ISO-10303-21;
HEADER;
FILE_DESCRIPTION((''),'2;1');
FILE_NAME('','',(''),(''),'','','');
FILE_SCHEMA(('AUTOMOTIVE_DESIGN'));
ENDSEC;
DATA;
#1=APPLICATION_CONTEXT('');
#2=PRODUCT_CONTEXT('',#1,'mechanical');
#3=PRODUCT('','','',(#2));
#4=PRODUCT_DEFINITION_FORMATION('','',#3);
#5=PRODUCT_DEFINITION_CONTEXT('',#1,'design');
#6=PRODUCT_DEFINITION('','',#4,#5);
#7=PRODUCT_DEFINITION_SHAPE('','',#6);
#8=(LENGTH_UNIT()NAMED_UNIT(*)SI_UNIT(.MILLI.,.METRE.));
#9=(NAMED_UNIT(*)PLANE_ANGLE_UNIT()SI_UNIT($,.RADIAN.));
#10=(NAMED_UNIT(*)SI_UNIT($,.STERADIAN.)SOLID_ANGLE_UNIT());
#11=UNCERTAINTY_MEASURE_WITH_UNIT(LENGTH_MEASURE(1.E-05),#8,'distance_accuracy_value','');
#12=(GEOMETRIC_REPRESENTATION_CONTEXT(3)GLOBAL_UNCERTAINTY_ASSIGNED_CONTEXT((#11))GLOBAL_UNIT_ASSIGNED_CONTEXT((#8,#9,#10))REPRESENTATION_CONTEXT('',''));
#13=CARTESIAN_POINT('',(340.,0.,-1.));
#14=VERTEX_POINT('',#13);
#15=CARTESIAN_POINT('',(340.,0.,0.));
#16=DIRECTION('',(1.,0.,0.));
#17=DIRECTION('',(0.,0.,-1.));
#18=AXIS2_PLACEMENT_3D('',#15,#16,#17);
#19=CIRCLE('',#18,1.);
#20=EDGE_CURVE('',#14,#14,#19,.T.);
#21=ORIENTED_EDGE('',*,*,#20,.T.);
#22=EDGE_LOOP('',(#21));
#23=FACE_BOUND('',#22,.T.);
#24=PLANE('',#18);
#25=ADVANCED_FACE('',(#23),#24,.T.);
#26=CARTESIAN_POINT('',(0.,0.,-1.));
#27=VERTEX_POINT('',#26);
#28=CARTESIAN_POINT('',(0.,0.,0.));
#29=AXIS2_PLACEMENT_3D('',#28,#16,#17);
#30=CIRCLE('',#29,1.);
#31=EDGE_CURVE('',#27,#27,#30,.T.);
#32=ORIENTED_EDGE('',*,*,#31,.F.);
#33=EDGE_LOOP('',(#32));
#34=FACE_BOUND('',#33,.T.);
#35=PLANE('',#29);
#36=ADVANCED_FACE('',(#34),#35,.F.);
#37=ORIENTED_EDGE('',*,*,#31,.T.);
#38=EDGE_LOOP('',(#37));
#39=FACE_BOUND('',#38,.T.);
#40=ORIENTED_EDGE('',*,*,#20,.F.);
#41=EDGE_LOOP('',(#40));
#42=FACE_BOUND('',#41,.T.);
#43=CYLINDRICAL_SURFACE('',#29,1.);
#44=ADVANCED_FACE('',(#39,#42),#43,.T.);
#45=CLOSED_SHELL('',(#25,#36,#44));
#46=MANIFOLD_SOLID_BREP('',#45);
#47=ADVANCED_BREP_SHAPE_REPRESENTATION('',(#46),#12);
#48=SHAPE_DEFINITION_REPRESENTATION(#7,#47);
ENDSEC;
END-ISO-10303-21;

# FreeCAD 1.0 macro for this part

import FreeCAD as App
import Part
import Sketcher

doc = App.newDocument("Part")
body = doc.addObject("PartDesign::Body", "Body")

# Sketch on YZ plane
sketch1 = body.newObject("Sketcher::SketchObject", "Sketch")
sketch1.AttachmentSupport = (doc.getObject("YZ_Plane"), [""])
sketch1.MapMode = "FlatFace"
sketch1.addGeometry(Part.Circle(App.Vector(0, 0, 0), App.Vector(0, 0, 1), 1), False)
sketch1.addConstraint([
    Sketcher.Constraint("Coincident", 0, 3, -1, 1),
    Sketcher.Constraint("Diameter", 0, 2.0),
])

# Sketch on XY plane
sketch2 = body.newObject("Sketcher::SketchObject", "Sketch001")
sketch2.AttachmentSupport = (doc.getObject("XY_Plane"), [""])
sketch2.MapMode = "FlatFace"
sketch2.addGeometry(Part.LineSegment(App.Vector(0, 0, 0), App.Vector(340, 0, 0)), False)
sketch2.addConstraint([
    Sketcher.Constraint("Horizontal", 0),
    Sketcher.Constraint("Coincident", 0, 1, -1, 1),
    Sketcher.Constraint("DistanceX", 0, 1, 0, 2, 340.0),
])
doc.recompute()

additivepipe = body.newObject("PartDesign::AdditivePipe", "AdditivePipe")
additivepipe.Profile = sketch1
additivepipe.Spine = (sketch2, ["Edge1"])

doc.recompute()
